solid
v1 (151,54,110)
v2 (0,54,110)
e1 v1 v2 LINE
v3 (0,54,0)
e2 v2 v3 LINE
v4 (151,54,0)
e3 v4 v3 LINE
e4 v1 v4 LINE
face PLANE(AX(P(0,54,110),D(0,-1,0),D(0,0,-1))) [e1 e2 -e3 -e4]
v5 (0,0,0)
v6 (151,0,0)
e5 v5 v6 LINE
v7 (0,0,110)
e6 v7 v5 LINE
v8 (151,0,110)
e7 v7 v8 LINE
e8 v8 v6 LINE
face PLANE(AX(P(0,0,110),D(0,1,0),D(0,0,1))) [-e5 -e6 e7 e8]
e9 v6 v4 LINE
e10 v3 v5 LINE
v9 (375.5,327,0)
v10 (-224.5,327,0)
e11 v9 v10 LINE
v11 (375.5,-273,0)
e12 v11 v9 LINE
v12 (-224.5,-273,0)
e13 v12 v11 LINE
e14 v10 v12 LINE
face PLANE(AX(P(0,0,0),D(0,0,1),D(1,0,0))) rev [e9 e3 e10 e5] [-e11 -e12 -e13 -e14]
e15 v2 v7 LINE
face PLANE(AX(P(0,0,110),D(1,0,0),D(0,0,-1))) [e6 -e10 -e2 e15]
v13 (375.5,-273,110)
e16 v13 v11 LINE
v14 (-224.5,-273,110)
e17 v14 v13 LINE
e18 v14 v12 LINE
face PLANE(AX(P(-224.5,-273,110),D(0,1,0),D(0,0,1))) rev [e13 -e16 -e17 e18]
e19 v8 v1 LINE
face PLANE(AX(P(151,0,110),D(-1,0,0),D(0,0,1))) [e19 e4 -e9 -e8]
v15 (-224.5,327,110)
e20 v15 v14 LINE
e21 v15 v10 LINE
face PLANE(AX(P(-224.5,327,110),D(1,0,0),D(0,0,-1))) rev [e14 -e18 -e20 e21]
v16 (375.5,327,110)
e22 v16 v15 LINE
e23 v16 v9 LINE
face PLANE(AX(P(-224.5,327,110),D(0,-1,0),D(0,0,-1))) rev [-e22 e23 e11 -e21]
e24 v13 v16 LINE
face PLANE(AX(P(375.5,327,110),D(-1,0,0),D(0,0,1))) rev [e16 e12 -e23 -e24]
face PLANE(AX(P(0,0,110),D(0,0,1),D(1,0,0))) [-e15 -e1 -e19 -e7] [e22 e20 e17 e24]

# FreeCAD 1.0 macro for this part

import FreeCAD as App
import Part
import Sketcher

V = App.Vector
Q = App.Units.Quantity

doc = App.newDocument("Part")
body = doc.addObject("PartDesign::Body", "Body")

sketch1 = doc.addObject("Sketcher::SketchObject", "Sketch")
body.addObject(sketch1)
sketch1.AttachmentSupport = (doc.XY_Plane, [""])
sketch1.MapMode = "FlatFace"
sketch1.addGeometry([
    Part.LineSegment(V(-224.5, 327, 0), V(-224.5, -273, 0)),
    Part.LineSegment(V(-224.5, -273, 0), V(375.5, -273, 0)),
    Part.LineSegment(V(375.5, -273, 0), V(375.5, 327, 0)),
    Part.LineSegment(V(375.5, 327, 0), V(-224.5, 327, 0)),
    Part.LineSegment(V(151, 0, 0), V(0, 0, 0)),
    Part.LineSegment(V(0, 0, 0), V(0, 54, 0)),
    Part.LineSegment(V(0, 54, 0), V(151, 54, 0)),
    Part.LineSegment(V(151, 54, 0), V(151, 0, 0)),
], False)
sketch1.addConstraint([
    Sketcher.Constraint("Coincident", 0, 2, 1, 1),
    Sketcher.Constraint("Coincident", 1, 2, 2, 1),
    Sketcher.Constraint("Coincident", 2, 2, 3, 1),
    Sketcher.Constraint("Coincident", 3, 2, 0, 1),
    Sketcher.Constraint("Coincident", 4, 2, 5, 1),
    Sketcher.Constraint("Coincident", 5, 2, 6, 1),
    Sketcher.Constraint("Coincident", 6, 2, 7, 1),
    Sketcher.Constraint("Coincident", 7, 2, 4, 1),
    Sketcher.Constraint("Vertical", 0),
    Sketcher.Constraint("Horizontal", 1),
    Sketcher.Constraint("Vertical", 2),
    Sketcher.Constraint("Horizontal", 3),
    Sketcher.Constraint("Horizontal", 4),
    Sketcher.Constraint("Vertical", 5),
    Sketcher.Constraint("Horizontal", 6),
    Sketcher.Constraint("Vertical", 7),
    Sketcher.Constraint("Coincident", 4, 2, -1, 1),
    Sketcher.Constraint("Equal", 3, 0),
    Sketcher.Constraint("DistanceX", 1, 1, 1, 2, Q("600 mm")),
    Sketcher.Constraint("DistanceX", 4, 2, 4, 1, Q("151 mm")),
    Sketcher.Constraint("DistanceY", 5, 1, 5, 2, Q("54 mm")),
    Sketcher.Constraint("DistanceY", 0, 2, -1, 1, Q("273 mm")),
    Sketcher.Constraint("DistanceX", 0, 2, -1, 1, Q("224.5 mm")),
])
pad1 = doc.addObject("PartDesign::Pad", "Pad")
body.addObject(pad1)
pad1.Profile = sketch1
pad1.Length = 110

doc.recompute()
